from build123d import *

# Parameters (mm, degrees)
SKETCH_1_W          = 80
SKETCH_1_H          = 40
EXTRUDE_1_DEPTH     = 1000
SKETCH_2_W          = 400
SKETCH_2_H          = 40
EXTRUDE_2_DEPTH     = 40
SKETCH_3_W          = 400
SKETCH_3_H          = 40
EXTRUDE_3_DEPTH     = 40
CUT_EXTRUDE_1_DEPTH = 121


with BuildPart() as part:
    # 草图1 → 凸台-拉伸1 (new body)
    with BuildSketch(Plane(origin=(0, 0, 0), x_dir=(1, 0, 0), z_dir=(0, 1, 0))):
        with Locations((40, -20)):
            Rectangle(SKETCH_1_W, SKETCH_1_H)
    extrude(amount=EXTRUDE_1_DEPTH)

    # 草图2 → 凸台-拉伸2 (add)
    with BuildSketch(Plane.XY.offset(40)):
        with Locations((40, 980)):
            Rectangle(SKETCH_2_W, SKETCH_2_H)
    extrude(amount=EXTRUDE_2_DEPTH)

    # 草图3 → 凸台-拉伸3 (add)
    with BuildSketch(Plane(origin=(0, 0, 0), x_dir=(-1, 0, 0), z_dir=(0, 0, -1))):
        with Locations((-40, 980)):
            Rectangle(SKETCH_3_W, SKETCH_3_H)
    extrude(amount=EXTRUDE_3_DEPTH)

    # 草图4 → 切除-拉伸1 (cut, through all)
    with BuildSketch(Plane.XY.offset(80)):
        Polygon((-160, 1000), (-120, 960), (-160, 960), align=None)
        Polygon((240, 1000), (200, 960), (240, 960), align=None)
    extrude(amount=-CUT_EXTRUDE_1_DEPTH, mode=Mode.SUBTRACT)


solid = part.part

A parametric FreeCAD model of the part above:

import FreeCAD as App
import Part
import Sketcher

V = App.Vector


def add_polygon(sketch, points):
    """Adds a closed chain of lines whose ends are joined by coincident constraints."""
    first, n = sketch.GeometryCount, len(points)
    for a, b in zip(points, points[1:] + points[:1]):
        sketch.addGeometry(Part.LineSegment(App.Vector(*a, 0), App.Vector(*b, 0)), False)
    for i in range(n):
        sketch.addConstraint(Sketcher.Constraint("Coincident", first + i, 2, first + (i + 1) % n, 1))

doc = App.newDocument("Part")
body = doc.addObject("PartDesign::Body", "Body")

# Sketch on XZ plane
sketch1 = body.newObject("Sketcher::SketchObject", "Sketch")
sketch1.AttachmentSupport = (doc.getObject("XZ_Plane"), [""])
sketch1.MapMode = "FlatFace"
add_polygon(sketch1, [(0, 0), (0, 40), (80, 40), (80, 0)])  # lines 0-3
sketch1.addConstraint([
    Sketcher.Constraint("Vertical", 0),
    Sketcher.Constraint("Horizontal", 1),
    Sketcher.Constraint("Vertical", 2),
    Sketcher.Constraint("Horizontal", 3),
    Sketcher.Constraint("Coincident", 3, 2, -1, 1),
    Sketcher.Constraint("DistanceX", 1, 1, 1, 2, 80.0),
    Sketcher.Constraint("DistanceY", 0, 1, 0, 2, 40.0),
])
pad1 = body.newObject("PartDesign::Pad", "Pad")
pad1.Profile = sketch1
pad1.Length = 1000
pad1.Reversed = True

# Sketch on XY plane
sketch2 = body.newObject("Sketcher::SketchObject", "Sketch001")
sketch2.AttachmentSupport = (doc.getObject("XY_Plane"), [""])
sketch2.MapMode = "FlatFace"
sketch2.AttachmentOffset = App.Placement(V(0, 0, 40), App.Rotation())
add_polygon(sketch2, [(-160, 1000), (-160, 960), (240, 960), (240, 1000)])  # lines 0-3
sketch2.addConstraint([
    Sketcher.Constraint("Vertical", 0),
    Sketcher.Constraint("Horizontal", 1),
    Sketcher.Constraint("Vertical", 2),
    Sketcher.Constraint("Horizontal", 3),
    Sketcher.Constraint("DistanceX", 1, 1, 1, 2, 400.0),
    Sketcher.Constraint("DistanceY", 0, 2, 0, 1, 40.0),
    Sketcher.Constraint("DistanceX", 0, 2, -1, 1, 160.0),
    Sketcher.Constraint("DistanceY", -1, 1, 0, 2, 960.0),
])
pad2 = body.newObject("PartDesign::Pad", "Pad001")
pad2.Profile = sketch2
pad2.Length = 40

# Sketch on XY plane
sketch3 = body.newObject("Sketcher::SketchObject", "Sketch002")
sketch3.AttachmentSupport = (doc.getObject("XY_Plane"), [""])
sketch3.MapMode = "FlatFace"
add_polygon(sketch3, [(240, 1000), (240, 960), (-160, 960), (-160, 1000)])  # lines 0-3
sketch3.addConstraint([
    Sketcher.Constraint("Vertical", 0),
    Sketcher.Constraint("Horizontal", 1),
    Sketcher.Constraint("Vertical", 2),
    Sketcher.Constraint("Horizontal", 3),
    Sketcher.Constraint("DistanceX", 1, 2, 1, 1, 400.0),
    Sketcher.Constraint("DistanceY", 0, 2, 0, 1, 40.0),
    Sketcher.Constraint("DistanceX", -1, 1, 0, 2, 240.0),
    Sketcher.Constraint("DistanceY", -1, 1, 0, 2, 960.0),
])
pad3 = body.newObject("PartDesign::Pad", "Pad002")
pad3.Profile = sketch3
pad3.Length = 40
pad3.Reversed = True

# Sketch on XY plane
sketch4 = body.newObject("Sketcher::SketchObject", "Sketch003")
sketch4.AttachmentSupport = (doc.getObject("XY_Plane"), [""])
sketch4.MapMode = "FlatFace"
sketch4.AttachmentOffset = App.Placement(V(0, 0, 80), App.Rotation())
add_polygon(sketch4, [(-120, 960), (-160, 1000), (-160, 960)])  # lines 0-2
add_polygon(sketch4, [(240, 1000), (200, 960), (240, 960)])  # lines 3-5
sketch4.addConstraint([
    Sketcher.Constraint("Vertical", 1),
    Sketcher.Constraint("Horizontal", 2),
    Sketcher.Constraint("Horizontal", 4),
    Sketcher.Constraint("Vertical", 5),
    Sketcher.Constraint("Perpendicular", 0, 3),
    Sketcher.Constraint("Horizontal", 2, 2, 3, 2),
    Sketcher.Constraint("Horizontal", 0, 2, 5, 2),
    Sketcher.Constraint("Equal", 2, 4),
    Sketcher.Constraint("DistanceX", 2, 1, 2, 2, 40.0),
    Sketcher.Constraint("DistanceX", 0, 2, -1, 1, 160.0),
    Sketcher.Constraint("DistanceY", -1, 1, 0, 2, 1000.0),
    Sketcher.Constraint("DistanceX", -1, 1, 3, 2, 200.0),
])
pocket1 = body.newObject("PartDesign::Pocket", "Pocket")
pocket1.Profile = sketch4
pocket1.Type = "ThroughAll"

doc.recompute()
